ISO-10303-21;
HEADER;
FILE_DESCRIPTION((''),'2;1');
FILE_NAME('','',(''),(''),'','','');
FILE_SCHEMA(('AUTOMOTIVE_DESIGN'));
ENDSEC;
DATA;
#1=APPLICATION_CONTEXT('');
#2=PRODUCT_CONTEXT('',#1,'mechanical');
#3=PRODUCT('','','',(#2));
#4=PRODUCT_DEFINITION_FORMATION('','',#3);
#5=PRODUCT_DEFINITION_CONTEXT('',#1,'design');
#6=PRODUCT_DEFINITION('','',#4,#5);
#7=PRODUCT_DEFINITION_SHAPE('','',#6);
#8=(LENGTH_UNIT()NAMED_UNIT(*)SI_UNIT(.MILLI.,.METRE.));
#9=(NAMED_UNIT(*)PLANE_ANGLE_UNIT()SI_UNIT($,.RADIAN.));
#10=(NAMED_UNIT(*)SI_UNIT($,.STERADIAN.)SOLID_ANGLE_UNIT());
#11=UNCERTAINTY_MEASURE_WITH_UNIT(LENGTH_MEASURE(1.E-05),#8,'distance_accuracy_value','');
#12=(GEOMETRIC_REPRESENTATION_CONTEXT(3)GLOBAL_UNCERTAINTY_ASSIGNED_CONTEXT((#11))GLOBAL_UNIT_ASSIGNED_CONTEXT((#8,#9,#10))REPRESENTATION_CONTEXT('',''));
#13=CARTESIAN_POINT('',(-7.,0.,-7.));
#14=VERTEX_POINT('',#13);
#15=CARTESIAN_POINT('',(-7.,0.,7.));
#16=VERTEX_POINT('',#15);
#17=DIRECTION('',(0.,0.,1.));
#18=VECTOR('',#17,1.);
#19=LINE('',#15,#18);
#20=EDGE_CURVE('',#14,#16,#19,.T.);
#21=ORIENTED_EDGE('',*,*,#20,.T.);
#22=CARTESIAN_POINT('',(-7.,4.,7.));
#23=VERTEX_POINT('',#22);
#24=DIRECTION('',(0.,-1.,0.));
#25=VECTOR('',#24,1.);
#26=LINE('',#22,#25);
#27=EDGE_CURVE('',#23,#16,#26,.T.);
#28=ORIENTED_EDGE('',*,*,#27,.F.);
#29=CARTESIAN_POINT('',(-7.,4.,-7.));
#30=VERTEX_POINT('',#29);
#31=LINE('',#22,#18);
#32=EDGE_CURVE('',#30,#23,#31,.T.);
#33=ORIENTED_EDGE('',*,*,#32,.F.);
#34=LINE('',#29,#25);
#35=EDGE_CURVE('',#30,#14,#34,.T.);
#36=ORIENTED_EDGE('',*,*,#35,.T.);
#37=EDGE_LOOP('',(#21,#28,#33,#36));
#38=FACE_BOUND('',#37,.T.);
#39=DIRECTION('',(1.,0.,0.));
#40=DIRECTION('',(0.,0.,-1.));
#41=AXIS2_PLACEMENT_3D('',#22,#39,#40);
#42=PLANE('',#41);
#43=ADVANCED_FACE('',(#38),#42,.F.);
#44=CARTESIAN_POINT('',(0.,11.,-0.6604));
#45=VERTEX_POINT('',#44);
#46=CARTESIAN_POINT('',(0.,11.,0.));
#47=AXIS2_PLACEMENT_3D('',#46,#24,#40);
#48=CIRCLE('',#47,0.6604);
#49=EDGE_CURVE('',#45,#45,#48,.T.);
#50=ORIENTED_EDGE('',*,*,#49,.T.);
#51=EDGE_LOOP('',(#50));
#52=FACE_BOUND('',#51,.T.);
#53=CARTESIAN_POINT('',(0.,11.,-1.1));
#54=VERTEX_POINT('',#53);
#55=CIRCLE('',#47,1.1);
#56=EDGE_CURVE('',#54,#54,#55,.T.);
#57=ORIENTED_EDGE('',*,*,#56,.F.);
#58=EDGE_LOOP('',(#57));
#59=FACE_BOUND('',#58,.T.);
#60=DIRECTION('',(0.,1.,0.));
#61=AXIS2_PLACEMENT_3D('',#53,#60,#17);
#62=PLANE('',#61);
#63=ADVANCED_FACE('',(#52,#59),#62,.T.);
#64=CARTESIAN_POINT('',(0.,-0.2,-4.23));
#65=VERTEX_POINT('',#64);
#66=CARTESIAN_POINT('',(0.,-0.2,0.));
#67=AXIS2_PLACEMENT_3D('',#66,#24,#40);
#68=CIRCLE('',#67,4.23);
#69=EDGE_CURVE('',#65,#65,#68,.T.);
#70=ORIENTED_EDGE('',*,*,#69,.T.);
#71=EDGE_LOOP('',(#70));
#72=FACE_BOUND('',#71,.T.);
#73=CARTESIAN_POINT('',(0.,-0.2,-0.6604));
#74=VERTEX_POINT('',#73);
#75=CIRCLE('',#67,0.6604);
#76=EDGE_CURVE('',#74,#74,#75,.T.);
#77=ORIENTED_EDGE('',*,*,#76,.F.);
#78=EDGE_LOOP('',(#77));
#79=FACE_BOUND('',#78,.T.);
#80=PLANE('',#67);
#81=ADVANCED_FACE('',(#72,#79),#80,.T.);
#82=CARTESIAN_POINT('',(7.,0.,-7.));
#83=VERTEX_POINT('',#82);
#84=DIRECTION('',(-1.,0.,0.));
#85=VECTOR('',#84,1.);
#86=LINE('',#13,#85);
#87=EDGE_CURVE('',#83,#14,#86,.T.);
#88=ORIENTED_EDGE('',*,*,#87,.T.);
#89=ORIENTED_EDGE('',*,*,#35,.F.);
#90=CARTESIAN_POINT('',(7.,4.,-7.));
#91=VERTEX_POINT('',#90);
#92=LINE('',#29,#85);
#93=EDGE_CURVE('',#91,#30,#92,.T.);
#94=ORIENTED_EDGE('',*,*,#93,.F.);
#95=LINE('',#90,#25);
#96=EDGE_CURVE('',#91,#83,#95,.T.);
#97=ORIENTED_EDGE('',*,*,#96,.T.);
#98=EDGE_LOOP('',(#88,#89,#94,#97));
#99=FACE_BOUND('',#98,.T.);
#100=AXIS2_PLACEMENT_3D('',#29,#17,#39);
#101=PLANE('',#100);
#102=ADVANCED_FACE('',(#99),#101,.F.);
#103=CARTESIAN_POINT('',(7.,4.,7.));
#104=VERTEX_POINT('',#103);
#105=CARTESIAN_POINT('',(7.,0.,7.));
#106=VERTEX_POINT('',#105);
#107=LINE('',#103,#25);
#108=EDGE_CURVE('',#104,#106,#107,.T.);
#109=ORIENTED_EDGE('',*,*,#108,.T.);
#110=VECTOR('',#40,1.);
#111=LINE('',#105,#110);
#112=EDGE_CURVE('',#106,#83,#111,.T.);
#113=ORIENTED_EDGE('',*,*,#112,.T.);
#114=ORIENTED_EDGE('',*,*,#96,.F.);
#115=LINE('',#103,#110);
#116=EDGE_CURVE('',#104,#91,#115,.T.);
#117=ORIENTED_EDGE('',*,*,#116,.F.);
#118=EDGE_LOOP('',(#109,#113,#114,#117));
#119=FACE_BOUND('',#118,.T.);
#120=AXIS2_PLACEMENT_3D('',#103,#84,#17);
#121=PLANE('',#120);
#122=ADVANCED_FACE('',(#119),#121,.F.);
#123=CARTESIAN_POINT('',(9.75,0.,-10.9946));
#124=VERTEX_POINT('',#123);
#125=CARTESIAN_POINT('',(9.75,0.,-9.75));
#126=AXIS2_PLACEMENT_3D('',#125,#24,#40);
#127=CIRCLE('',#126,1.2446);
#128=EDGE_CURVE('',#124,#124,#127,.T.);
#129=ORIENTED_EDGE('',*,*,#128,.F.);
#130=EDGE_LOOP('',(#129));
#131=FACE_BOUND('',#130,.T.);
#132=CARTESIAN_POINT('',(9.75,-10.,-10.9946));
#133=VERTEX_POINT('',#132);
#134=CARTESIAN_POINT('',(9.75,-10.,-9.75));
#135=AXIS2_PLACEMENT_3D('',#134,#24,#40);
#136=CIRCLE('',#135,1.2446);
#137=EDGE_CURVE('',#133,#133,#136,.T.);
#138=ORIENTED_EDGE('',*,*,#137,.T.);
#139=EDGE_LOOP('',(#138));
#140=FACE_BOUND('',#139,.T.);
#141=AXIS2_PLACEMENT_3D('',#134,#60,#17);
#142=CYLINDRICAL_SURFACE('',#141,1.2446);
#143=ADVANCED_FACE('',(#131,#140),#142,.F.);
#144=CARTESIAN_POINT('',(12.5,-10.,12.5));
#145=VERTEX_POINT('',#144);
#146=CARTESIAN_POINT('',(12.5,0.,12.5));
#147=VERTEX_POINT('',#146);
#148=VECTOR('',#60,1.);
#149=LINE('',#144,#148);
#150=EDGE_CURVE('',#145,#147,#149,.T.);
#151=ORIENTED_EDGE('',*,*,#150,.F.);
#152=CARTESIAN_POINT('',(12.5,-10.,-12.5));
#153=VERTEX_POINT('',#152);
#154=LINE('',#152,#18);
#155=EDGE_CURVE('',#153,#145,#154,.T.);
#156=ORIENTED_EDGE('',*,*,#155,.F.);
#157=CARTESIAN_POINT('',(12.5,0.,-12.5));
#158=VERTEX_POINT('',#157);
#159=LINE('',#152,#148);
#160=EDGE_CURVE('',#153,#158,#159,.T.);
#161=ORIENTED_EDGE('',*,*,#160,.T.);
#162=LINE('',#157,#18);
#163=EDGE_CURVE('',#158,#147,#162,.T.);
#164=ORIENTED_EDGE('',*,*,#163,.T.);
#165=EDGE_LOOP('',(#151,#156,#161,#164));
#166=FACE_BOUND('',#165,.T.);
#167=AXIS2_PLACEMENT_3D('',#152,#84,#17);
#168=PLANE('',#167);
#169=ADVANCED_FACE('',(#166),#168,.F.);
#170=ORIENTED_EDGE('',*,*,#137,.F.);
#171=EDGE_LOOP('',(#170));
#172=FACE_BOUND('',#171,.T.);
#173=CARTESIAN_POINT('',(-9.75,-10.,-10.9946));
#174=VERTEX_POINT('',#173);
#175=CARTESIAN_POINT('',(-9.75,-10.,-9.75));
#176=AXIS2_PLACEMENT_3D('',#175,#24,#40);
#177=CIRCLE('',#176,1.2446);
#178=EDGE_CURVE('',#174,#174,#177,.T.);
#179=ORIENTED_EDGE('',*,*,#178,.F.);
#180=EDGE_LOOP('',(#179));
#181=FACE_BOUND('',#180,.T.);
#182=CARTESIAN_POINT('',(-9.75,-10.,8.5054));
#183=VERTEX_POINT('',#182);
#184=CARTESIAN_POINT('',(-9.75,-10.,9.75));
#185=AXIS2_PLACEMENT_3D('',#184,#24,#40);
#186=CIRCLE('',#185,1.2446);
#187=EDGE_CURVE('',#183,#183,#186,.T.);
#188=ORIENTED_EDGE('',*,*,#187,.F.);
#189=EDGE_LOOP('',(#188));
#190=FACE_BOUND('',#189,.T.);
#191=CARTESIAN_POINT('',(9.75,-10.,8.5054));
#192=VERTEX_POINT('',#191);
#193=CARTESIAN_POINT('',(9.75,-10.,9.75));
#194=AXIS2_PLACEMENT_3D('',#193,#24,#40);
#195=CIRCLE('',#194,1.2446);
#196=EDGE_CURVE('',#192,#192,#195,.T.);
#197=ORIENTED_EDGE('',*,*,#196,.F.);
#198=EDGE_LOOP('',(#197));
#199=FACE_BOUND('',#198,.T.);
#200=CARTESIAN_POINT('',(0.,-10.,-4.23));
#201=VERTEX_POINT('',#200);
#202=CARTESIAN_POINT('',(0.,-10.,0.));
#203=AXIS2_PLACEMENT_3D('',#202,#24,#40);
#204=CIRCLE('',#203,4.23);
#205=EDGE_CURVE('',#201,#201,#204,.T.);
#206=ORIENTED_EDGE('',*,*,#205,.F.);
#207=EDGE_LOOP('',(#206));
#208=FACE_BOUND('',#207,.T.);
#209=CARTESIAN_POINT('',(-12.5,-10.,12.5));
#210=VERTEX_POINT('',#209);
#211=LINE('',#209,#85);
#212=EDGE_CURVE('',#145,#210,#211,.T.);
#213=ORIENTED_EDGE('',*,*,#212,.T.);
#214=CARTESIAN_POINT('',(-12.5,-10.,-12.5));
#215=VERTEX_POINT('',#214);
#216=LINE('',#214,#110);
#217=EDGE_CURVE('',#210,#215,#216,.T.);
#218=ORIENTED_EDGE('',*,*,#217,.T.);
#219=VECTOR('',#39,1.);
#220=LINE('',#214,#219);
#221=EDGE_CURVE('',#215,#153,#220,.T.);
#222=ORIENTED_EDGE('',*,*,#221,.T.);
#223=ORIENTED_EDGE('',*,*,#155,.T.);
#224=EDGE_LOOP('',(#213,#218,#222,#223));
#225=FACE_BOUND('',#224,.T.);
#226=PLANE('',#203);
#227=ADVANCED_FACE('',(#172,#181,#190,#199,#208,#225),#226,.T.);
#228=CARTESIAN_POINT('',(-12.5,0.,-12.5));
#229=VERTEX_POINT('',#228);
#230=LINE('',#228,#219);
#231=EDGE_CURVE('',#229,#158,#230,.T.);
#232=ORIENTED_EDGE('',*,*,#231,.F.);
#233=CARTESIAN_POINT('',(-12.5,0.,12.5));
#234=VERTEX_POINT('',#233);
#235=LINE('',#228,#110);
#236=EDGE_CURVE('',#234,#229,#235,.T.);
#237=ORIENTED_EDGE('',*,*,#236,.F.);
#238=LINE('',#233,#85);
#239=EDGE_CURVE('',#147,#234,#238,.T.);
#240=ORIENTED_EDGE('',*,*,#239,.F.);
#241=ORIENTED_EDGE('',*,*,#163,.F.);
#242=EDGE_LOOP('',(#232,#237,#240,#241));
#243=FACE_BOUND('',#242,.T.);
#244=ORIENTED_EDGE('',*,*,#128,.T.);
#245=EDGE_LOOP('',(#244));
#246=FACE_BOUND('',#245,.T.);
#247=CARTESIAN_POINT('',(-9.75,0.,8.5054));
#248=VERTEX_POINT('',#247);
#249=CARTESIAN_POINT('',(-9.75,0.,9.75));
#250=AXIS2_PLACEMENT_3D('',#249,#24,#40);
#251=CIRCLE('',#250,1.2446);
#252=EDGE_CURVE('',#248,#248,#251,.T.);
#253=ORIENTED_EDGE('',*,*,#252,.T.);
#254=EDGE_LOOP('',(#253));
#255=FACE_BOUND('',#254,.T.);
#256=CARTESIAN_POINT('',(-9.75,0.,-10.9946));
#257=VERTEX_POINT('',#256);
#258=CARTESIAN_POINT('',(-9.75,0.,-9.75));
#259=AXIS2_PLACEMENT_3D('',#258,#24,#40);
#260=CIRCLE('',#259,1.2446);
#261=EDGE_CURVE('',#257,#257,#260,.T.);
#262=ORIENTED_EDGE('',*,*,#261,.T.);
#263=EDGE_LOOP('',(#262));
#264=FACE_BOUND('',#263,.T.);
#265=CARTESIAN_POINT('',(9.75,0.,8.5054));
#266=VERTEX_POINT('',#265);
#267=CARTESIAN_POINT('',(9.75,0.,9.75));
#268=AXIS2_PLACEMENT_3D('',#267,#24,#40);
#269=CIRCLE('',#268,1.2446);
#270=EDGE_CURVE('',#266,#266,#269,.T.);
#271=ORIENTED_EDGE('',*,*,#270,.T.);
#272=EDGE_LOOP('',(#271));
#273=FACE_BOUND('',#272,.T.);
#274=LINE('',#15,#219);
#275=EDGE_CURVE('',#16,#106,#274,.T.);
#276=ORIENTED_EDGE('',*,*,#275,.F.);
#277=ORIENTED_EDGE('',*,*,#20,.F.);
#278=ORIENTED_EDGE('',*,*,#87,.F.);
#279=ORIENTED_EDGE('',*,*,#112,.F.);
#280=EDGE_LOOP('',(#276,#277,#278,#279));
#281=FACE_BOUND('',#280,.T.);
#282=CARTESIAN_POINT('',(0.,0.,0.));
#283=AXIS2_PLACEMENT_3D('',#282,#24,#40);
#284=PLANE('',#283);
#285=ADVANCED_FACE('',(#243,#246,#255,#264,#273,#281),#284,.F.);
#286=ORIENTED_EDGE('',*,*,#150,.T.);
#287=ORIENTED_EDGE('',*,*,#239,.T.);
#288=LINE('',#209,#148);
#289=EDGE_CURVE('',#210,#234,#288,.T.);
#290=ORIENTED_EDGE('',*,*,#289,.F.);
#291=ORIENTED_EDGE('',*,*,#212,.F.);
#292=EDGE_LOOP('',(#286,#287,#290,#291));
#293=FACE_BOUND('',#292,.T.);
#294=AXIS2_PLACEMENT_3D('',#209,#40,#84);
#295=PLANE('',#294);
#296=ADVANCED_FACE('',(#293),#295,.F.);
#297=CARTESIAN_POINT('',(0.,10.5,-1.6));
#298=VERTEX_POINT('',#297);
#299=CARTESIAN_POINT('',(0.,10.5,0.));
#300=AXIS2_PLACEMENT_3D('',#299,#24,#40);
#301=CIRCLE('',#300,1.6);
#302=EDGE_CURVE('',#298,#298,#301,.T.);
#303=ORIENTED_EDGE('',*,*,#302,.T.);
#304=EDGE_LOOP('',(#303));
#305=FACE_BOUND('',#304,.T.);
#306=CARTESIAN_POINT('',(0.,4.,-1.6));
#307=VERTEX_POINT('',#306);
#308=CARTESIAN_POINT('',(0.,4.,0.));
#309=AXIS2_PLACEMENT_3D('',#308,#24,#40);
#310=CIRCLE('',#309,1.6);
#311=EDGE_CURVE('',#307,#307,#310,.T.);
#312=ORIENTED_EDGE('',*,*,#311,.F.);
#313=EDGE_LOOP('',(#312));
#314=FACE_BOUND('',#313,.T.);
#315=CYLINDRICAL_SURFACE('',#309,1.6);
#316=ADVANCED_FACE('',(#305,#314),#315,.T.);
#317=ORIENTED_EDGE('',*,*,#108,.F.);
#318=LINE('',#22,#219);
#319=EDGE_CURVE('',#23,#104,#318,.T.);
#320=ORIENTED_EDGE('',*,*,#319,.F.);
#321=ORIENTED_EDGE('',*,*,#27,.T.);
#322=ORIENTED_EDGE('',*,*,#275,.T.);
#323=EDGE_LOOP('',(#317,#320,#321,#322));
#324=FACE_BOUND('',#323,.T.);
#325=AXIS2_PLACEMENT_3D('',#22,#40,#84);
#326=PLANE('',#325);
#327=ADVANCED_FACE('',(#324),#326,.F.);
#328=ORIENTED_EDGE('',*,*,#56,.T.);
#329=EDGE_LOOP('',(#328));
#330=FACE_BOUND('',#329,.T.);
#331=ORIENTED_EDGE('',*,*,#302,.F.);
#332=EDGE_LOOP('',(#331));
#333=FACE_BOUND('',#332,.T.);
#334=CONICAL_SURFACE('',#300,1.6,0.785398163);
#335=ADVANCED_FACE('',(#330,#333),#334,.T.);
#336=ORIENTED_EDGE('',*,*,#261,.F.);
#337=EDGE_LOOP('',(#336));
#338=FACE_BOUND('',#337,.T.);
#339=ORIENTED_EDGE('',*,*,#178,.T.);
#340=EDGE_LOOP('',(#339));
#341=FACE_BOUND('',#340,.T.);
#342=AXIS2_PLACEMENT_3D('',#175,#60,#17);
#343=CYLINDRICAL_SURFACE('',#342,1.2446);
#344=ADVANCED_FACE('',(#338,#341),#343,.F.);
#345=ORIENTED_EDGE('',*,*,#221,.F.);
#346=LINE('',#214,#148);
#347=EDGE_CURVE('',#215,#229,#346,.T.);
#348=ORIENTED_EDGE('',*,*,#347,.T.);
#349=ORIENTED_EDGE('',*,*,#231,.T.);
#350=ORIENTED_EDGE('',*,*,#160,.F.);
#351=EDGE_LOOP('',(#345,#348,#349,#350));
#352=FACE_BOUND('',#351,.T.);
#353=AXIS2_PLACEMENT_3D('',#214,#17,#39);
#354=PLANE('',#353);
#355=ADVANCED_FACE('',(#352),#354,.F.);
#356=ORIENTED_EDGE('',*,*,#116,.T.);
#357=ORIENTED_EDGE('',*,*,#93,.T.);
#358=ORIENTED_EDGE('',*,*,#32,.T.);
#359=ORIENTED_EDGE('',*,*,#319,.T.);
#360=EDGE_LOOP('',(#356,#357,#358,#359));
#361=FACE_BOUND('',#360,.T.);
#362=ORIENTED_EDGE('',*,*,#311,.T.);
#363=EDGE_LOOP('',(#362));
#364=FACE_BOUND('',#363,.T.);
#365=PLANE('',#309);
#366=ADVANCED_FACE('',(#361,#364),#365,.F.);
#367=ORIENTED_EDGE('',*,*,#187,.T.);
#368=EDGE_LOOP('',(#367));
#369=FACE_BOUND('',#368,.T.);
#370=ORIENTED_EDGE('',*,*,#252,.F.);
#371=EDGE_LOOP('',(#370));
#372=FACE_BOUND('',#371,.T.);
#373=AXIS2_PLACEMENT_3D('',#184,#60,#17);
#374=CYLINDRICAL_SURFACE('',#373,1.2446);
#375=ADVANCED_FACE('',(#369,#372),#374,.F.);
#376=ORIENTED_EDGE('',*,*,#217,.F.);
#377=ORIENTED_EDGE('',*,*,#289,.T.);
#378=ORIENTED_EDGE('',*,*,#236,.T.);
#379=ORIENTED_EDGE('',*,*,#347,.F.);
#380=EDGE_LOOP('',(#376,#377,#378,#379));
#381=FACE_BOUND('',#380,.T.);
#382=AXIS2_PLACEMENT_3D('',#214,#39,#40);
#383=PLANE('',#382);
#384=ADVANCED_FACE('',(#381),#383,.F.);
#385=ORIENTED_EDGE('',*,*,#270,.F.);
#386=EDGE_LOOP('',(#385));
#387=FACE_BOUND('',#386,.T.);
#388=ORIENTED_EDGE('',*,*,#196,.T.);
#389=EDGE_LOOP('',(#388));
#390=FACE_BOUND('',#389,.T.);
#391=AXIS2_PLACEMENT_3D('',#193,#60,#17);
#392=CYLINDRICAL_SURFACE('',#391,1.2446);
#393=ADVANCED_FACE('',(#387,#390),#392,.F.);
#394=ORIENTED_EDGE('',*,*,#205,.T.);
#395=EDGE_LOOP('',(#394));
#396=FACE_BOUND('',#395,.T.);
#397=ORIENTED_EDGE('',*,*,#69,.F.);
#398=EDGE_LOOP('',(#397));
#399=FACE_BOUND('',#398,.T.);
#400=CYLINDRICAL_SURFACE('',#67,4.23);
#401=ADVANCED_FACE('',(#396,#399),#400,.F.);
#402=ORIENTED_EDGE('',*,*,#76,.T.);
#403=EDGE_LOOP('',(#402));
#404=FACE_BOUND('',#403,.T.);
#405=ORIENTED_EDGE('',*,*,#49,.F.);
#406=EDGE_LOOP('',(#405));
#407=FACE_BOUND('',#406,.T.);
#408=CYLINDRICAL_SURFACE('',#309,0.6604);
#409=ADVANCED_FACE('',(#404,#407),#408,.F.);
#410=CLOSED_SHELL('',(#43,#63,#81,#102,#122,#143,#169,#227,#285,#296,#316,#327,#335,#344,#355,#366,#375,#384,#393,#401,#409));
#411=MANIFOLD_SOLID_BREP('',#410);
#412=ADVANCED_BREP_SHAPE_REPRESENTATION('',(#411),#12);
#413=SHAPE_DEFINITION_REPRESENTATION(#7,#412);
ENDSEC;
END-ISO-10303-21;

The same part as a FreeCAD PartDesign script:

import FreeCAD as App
import Part
import Sketcher
Q = App.Units.Quantity

doc = App.newDocument("Part")
body = doc.addObject("PartDesign::Body", "Body")

sketch1 = body.newObject("Sketcher::SketchObject", "Sketch")
sketch1.AttachmentSupport = (doc.getObject("XZ_Plane"), [""])
sketch1.MapMode = "FlatFace"
sketch1.addGeometry([
    Part.LineSegment(App.Vector(-7, -7, 0), App.Vector(-7, 7, 0)),
    Part.LineSegment(App.Vector(-7, 7, 0), App.Vector(7, 7, 0)),
    Part.LineSegment(App.Vector(7, 7, 0), App.Vector(7, -7, 0)),
    Part.LineSegment(App.Vector(7, -7, 0), App.Vector(-7, -7, 0)),
], False)
sketch1.addConstraint([
    Sketcher.Constraint("Coincident", 0, 2, 1, 1),
    Sketcher.Constraint("Coincident", 1, 2, 2, 1),
    Sketcher.Constraint("Coincident", 2, 2, 3, 1),
    Sketcher.Constraint("Coincident", 3, 2, 0, 1),
    Sketcher.Constraint("Vertical", 0),
    Sketcher.Constraint("Horizontal", 1),
    Sketcher.Constraint("Vertical", 2),
    Sketcher.Constraint("Horizontal", 3),
    Sketcher.Constraint("Symmetric", 0, 2, 2, 2, -1, 1),
    Sketcher.Constraint("Equal", 3, 0),
    Sketcher.Constraint("DistanceX", 1, 1, 1, 2, 14.0),
])
pad1 = body.newObject("PartDesign::Pad", "Pad")
pad1.Profile = sketch1
pad1.Length = 4
pad1.Reversed = True

sketch2 = body.newObject("Sketcher::SketchObject", "Sketch001")
sketch2.AttachmentSupport = (doc.getObject("XZ_Plane"), [""])
sketch2.MapMode = "FlatFace"
sketch2.addGeometry([
    Part.LineSegment(App.Vector(-12.5, 12.5, 0), App.Vector(-12.5, -12.5, 0)),
    Part.LineSegment(App.Vector(-12.5, -12.5, 0), App.Vector(12.5, -12.5, 0)),
    Part.LineSegment(App.Vector(12.5, -12.5, 0), App.Vector(12.5, 12.5, 0)),
    Part.LineSegment(App.Vector(12.5, 12.5, 0), App.Vector(-12.5, 12.5, 0)),
    Part.Circle(App.Vector(-9.8, -9.8, 0), App.Vector(0, 0, 1), 1.2),
    Part.Circle(App.Vector(9.8, -9.8, 0), App.Vector(0, 0, 1), 1.2),
    Part.Circle(App.Vector(-9.8, 9.8, 0), App.Vector(0, 0, 1), 1.2),
    Part.Circle(App.Vector(9.8, 9.8, 0), App.Vector(0, 0, 1), 1.2),
], False)
sketch2.addConstraint([
    Sketcher.Constraint("Coincident", 0, 2, 1, 1),
    Sketcher.Constraint("Coincident", 1, 2, 2, 1),
    Sketcher.Constraint("Coincident", 2, 2, 3, 1),
    Sketcher.Constraint("Coincident", 3, 2, 0, 1),
    Sketcher.Constraint("Vertical", 0),
    Sketcher.Constraint("Horizontal", 1),
    Sketcher.Constraint("Vertical", 2),
    Sketcher.Constraint("Horizontal", 3),
    Sketcher.Constraint("Equal", 4, 5),
    Sketcher.Constraint("Equal", 5, 6),
    Sketcher.Constraint("Equal", 6, 7),
    Sketcher.Constraint("Symmetric", 5, 3, 6, 3, -1, 1),
    Sketcher.Constraint("Symmetric", 4, 3, 7, 3, -1, 1),
    Sketcher.Constraint("Symmetric", 0, 2, 2, 2, -1, 1),
    Sketcher.Constraint("Symmetric", 4, 3, 5, 3, -2),
    Sketcher.Constraint("Equal", 3, 0),
    Sketcher.Constraint("DistanceX", 1, 1, 1, 2, 25.0),
    Sketcher.Constraint("Diameter", 4, 2.4892),
    Sketcher.Constraint("DistanceX", 4, 3, 5, 3, 19.5),
    Sketcher.Constraint("DistanceY", 4, 3, 6, 3, 19.5),
])
pad2 = body.newObject("PartDesign::Pad", "Pad001")
pad2.Profile = sketch2
pad2.Length = 10

sketch3 = body.newObject("Sketcher::SketchObject", "Sketch002")
sketch3.AttachmentSupport = (doc.getObject("XZ_Plane"), [""])
sketch3.MapMode = "FlatFace"
sketch3.AttachmentOffset = App.Placement(App.Vector(0, 0, 10), App.Rotation())
sketch3.addGeometry(Part.Circle(App.Vector(0, 0, 0), App.Vector(0, 0, 1), 4.2), False)
sketch3.addConstraint([
    Sketcher.Constraint("Coincident", 0, 3, -1, 1),
    Sketcher.Constraint("Diameter", 0, 8.46),
])
pocket1 = body.newObject("PartDesign::Pocket", "Pocket")
pocket1.Profile = sketch3
pocket1.Length = 9.8

sketch4 = body.newObject("Sketcher::SketchObject", "Sketch003")
sketch4.AttachmentSupport = (doc.getObject("YZ_Plane"), [""])
sketch4.MapMode = "FlatFace"
sketch4.addGeometry([
    Part.LineSegment(App.Vector(11, -0.66, 0), App.Vector(4, -0.66, 0)),
    Part.LineSegment(App.Vector(4, -0.66, 0), App.Vector(4, -1.6, 0)),
    Part.LineSegment(App.Vector(4, -1.6, 0), App.Vector(10.5, -1.6, 0)),
    Part.LineSegment(App.Vector(10.5, -1.6, 0), App.Vector(11, -1.1, 0)),
    Part.LineSegment(App.Vector(11, -1.1, 0), App.Vector(11, -0.66, 0)),
], False)
sketch4.addConstraint([
    Sketcher.Constraint("Coincident", 0, 2, 1, 1),
    Sketcher.Constraint("Coincident", 1, 2, 2, 1),
    Sketcher.Constraint("Coincident", 2, 2, 3, 1),
    Sketcher.Constraint("Coincident", 3, 2, 4, 1),
    Sketcher.Constraint("Coincident", 4, 2, 0, 1),
    Sketcher.Constraint("Horizontal", 0),
    Sketcher.Constraint("Vertical", 1),
    Sketcher.Constraint("Horizontal", 2),
    Sketcher.Constraint("Vertical", 4),
    Sketcher.Constraint("DistanceX", 0, 2, 0, 1, 7.0),
    Sketcher.Constraint("Angle", 3, Q("45 deg")),
    Sketcher.Constraint("DistanceX", 2, 1, 2, 2, 6.5),
    Sketcher.Constraint("DistanceX", -1, 1, 0, 2, 4.0),
    Sketcher.Constraint("DistanceY", 1, 2, -1, 1, 1.6),
    Sketcher.Constraint("DistanceY", 1, 2, 1, 1, 0.9396),
])
revolution = body.newObject("PartDesign::Revolution", "Revolution")
revolution.Profile = sketch4
revolution.ReferenceAxis = (sketch4, ["H_Axis"])
revolution.Angle = 360

sketch5 = body.newObject("Sketcher::SketchObject", "Sketch004")
sketch5.AttachmentSupport = (doc.getObject("XZ_Plane"), [""])
sketch5.MapMode = "FlatFace"
sketch5.AttachmentOffset = App.Placement(App.Vector(0, 0, -4), App.Rotation())
sketch5.addGeometry(Part.Circle(App.Vector(0, 0, 0), App.Vector(0, 0, 1), 0.7), False)
sketch5.addConstraint([
    Sketcher.Constraint("Coincident", 0, 3, -1, 1),
    Sketcher.Constraint("Diameter", 0, 1.3208),
])
pocket2 = body.newObject("PartDesign::Pocket", "Pocket001")
pocket2.Profile = sketch5
pocket2.Length = 14
pocket2.Reversed = True

doc.recompute()
